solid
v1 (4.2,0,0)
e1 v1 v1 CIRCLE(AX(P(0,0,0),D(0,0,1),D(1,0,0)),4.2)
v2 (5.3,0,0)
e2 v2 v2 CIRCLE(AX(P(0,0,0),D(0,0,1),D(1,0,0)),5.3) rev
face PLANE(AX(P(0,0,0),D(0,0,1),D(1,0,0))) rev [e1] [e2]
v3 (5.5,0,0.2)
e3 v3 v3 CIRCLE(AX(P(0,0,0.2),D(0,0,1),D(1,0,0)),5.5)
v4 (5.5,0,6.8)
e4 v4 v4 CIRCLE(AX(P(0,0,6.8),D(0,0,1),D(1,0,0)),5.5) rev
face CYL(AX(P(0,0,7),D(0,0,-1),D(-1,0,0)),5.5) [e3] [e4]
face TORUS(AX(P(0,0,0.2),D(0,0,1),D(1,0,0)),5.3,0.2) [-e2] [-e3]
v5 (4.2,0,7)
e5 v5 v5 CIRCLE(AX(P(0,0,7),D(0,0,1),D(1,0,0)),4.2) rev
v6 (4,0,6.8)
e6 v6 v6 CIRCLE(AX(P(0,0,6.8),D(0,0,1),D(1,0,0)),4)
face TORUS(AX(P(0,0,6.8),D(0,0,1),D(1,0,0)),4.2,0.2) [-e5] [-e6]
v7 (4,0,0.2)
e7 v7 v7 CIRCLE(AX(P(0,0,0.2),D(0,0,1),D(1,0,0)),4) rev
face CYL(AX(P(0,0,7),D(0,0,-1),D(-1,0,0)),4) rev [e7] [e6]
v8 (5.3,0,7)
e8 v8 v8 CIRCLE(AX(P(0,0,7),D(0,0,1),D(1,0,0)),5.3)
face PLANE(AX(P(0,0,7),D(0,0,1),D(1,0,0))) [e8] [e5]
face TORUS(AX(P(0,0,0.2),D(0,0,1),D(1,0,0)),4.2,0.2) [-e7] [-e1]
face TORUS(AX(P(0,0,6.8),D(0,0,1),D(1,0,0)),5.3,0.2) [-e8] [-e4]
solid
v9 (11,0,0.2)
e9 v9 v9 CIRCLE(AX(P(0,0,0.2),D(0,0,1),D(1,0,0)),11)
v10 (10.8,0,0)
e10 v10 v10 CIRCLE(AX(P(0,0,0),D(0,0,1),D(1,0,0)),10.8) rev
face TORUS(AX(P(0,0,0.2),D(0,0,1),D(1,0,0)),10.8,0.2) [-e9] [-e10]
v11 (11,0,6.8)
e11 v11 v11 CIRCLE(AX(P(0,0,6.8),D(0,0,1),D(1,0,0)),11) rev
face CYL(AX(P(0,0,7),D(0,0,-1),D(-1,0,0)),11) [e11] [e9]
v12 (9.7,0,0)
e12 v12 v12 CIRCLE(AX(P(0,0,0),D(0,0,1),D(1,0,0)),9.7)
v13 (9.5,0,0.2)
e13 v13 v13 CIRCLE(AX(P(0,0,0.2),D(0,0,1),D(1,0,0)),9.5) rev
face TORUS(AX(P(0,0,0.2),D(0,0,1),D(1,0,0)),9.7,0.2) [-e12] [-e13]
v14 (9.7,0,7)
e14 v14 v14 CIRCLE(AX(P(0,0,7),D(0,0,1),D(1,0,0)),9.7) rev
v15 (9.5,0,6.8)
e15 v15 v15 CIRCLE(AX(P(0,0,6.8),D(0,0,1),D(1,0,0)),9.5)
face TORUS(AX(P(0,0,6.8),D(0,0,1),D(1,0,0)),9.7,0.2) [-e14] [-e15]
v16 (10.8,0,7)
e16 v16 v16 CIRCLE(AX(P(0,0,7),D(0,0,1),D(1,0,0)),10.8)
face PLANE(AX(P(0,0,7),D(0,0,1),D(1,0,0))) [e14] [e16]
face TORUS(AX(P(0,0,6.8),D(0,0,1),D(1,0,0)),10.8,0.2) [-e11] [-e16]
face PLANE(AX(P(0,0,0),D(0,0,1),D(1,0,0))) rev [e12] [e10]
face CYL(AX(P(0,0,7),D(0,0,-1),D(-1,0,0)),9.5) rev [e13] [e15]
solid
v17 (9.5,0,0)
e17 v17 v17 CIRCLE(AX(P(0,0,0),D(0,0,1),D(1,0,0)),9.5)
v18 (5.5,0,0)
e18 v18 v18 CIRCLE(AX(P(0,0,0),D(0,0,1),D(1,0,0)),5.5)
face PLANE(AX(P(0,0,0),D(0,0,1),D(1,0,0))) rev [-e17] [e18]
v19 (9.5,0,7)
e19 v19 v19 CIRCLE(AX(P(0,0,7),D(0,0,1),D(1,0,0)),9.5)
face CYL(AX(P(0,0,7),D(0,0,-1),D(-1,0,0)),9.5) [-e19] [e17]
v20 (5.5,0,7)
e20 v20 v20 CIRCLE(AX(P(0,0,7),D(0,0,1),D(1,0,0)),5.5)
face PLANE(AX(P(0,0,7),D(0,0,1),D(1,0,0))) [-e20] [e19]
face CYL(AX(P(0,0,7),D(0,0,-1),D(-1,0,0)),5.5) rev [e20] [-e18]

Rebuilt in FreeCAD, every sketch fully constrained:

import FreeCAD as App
import Part
import Sketcher

V = App.Vector
Q = App.Units.Quantity


def edges_at(feature, points):
    """Names of the edges that pass closest to the given points."""
    edges = feature.Shape.Edges
    near = lambda p: min(range(len(edges)), key=lambda i: edges[i].distToShape(Part.Vertex(*p))[0])
    return sorted({f"Edge{near(p) + 1}" for p in points})

doc = App.newDocument("Part")
params = doc.addObject("Spreadsheet::Sheet", "Params")
for row, (alias, value) in enumerate([
    ("sketch1_diameter", "22 mm"),
    ("sketch1_diameter2", "19 mm"),
    ("pad1_length", "7 mm"),
    ("fillet_radius", "0.2 mm"),
    ("sketch2_diameter", "11 mm"),
    ("sketch2_diameter2", "8 mm"),
    ("pad2_length", "7 mm"),
    ("fillet2_radius", "0.2 mm"),
    ("sketch3_diameter", "19 mm"),
    ("sketch3_diameter2", "11 mm"),
    ("pad3_length", "7 mm"),
], start=1):
    params.set(f"A{row}", alias)
    params.set(f"B{row}", "=" + value)
    params.setAlias(f"B{row}", alias)

body = doc.addObject("PartDesign::Body", "Body")

# Sketch on XY plane
sketch1 = body.newObject("Sketcher::SketchObject", "Sketch")
sketch1.AttachmentSupport = (doc.getObject("XY_Plane"), [""])
sketch1.MapMode = "FlatFace"
sketch1.addGeometry(Part.Circle(V(0, 0, 0), V(0, 0, 1), 11), False)
sketch1.addGeometry(Part.Circle(V(0, 0, 0), V(0, 0, 1), 10), False)
sketch1.addConstraint(Sketcher.Constraint("Coincident", 0, 3, -1, 1))
sketch1.addConstraint(Sketcher.Constraint("Coincident", 1, 3, -1, 1))
sketch1.addConstraint(Sketcher.Constraint("Diameter", 0, Q("22 mm")))
sketch1.addConstraint(Sketcher.Constraint("Diameter", 1, Q("19 mm")))
sketch1.setExpression("Constraints[2]", "Params.sketch1_diameter")
sketch1.setExpression("Constraints[3]", "Params.sketch1_diameter2")
pad1 = body.newObject("PartDesign::Pad", "Pad")
pad1.Profile = sketch1
pad1.setExpression("Length", "Params.pad1_length")
doc.recompute()

fillet = body.newObject("PartDesign::Fillet", "Fillet")
fillet.Base = (pad1, edges_at(pad1, [
    (-11, 0, 0),
    (-9.5, 0, 0),
    (-9.5, 0, 7),
    (-11, 0, 7),
]))
fillet.setExpression("Radius", "Params.fillet_radius")
body2 = doc.addObject("PartDesign::Body", "Body001")

# Sketch on XY plane
sketch2 = body2.newObject("Sketcher::SketchObject", "Sketch001")
sketch2.AttachmentSupport = (doc.getObject("XY_Plane001"), [""])
sketch2.MapMode = "FlatFace"
sketch2.addGeometry(Part.Circle(V(0, 0, 0), V(0, 0, 1), 5.5), False)
sketch2.addGeometry(Part.Circle(V(0, 0, 0), V(0, 0, 1), 4), False)
sketch2.addConstraint(Sketcher.Constraint("Coincident", 0, 3, -1, 1))
sketch2.addConstraint(Sketcher.Constraint("Coincident", 1, 3, -1, 1))
sketch2.addConstraint(Sketcher.Constraint("Diameter", 0, Q("11 mm")))
sketch2.addConstraint(Sketcher.Constraint("Diameter", 1, Q("8 mm")))
sketch2.setExpression("Constraints[2]", "Params.sketch2_diameter")
sketch2.setExpression("Constraints[3]", "Params.sketch2_diameter2")
pad2 = body2.newObject("PartDesign::Pad", "Pad001")
pad2.Profile = sketch2
pad2.setExpression("Length", "Params.pad2_length")
doc.recompute()

fillet2 = body2.newObject("PartDesign::Fillet", "Fillet001")
fillet2.Base = (pad2, edges_at(pad2, [
    (-5.5, 0, 0),
    (-4, 0, 0),
    (-4, 0, 7),
    (-5.5, 0, 7),
]))
fillet2.setExpression("Radius", "Params.fillet2_radius")
body3 = doc.addObject("PartDesign::Body", "Body002")

# Sketch on XY plane
sketch3 = body3.newObject("Sketcher::SketchObject", "Sketch002")
sketch3.AttachmentSupport = (doc.getObject("XY_Plane002"), [""])
sketch3.MapMode = "FlatFace"
sketch3.addGeometry(Part.Circle(V(0, 0, 0), V(0, 0, 1), 10), False)
sketch3.addGeometry(Part.Circle(V(0, 0, 0), V(0, 0, 1), 6), False)
sketch3.addConstraint(Sketcher.Constraint("Coincident", 0, 3, -1, 1))
sketch3.addConstraint(Sketcher.Constraint("Coincident", 1, 3, -1, 1))
sketch3.addConstraint(Sketcher.Constraint("Diameter", 0, Q("19 mm")))
sketch3.addConstraint(Sketcher.Constraint("Diameter", 1, Q("11 mm")))
sketch3.setExpression("Constraints[2]", "Params.sketch3_diameter")
sketch3.setExpression("Constraints[3]", "Params.sketch3_diameter2")
pad3 = body3.newObject("PartDesign::Pad", "Pad002")
pad3.Profile = sketch3
pad3.setExpression("Length", "Params.pad3_length")

doc.recompute()
